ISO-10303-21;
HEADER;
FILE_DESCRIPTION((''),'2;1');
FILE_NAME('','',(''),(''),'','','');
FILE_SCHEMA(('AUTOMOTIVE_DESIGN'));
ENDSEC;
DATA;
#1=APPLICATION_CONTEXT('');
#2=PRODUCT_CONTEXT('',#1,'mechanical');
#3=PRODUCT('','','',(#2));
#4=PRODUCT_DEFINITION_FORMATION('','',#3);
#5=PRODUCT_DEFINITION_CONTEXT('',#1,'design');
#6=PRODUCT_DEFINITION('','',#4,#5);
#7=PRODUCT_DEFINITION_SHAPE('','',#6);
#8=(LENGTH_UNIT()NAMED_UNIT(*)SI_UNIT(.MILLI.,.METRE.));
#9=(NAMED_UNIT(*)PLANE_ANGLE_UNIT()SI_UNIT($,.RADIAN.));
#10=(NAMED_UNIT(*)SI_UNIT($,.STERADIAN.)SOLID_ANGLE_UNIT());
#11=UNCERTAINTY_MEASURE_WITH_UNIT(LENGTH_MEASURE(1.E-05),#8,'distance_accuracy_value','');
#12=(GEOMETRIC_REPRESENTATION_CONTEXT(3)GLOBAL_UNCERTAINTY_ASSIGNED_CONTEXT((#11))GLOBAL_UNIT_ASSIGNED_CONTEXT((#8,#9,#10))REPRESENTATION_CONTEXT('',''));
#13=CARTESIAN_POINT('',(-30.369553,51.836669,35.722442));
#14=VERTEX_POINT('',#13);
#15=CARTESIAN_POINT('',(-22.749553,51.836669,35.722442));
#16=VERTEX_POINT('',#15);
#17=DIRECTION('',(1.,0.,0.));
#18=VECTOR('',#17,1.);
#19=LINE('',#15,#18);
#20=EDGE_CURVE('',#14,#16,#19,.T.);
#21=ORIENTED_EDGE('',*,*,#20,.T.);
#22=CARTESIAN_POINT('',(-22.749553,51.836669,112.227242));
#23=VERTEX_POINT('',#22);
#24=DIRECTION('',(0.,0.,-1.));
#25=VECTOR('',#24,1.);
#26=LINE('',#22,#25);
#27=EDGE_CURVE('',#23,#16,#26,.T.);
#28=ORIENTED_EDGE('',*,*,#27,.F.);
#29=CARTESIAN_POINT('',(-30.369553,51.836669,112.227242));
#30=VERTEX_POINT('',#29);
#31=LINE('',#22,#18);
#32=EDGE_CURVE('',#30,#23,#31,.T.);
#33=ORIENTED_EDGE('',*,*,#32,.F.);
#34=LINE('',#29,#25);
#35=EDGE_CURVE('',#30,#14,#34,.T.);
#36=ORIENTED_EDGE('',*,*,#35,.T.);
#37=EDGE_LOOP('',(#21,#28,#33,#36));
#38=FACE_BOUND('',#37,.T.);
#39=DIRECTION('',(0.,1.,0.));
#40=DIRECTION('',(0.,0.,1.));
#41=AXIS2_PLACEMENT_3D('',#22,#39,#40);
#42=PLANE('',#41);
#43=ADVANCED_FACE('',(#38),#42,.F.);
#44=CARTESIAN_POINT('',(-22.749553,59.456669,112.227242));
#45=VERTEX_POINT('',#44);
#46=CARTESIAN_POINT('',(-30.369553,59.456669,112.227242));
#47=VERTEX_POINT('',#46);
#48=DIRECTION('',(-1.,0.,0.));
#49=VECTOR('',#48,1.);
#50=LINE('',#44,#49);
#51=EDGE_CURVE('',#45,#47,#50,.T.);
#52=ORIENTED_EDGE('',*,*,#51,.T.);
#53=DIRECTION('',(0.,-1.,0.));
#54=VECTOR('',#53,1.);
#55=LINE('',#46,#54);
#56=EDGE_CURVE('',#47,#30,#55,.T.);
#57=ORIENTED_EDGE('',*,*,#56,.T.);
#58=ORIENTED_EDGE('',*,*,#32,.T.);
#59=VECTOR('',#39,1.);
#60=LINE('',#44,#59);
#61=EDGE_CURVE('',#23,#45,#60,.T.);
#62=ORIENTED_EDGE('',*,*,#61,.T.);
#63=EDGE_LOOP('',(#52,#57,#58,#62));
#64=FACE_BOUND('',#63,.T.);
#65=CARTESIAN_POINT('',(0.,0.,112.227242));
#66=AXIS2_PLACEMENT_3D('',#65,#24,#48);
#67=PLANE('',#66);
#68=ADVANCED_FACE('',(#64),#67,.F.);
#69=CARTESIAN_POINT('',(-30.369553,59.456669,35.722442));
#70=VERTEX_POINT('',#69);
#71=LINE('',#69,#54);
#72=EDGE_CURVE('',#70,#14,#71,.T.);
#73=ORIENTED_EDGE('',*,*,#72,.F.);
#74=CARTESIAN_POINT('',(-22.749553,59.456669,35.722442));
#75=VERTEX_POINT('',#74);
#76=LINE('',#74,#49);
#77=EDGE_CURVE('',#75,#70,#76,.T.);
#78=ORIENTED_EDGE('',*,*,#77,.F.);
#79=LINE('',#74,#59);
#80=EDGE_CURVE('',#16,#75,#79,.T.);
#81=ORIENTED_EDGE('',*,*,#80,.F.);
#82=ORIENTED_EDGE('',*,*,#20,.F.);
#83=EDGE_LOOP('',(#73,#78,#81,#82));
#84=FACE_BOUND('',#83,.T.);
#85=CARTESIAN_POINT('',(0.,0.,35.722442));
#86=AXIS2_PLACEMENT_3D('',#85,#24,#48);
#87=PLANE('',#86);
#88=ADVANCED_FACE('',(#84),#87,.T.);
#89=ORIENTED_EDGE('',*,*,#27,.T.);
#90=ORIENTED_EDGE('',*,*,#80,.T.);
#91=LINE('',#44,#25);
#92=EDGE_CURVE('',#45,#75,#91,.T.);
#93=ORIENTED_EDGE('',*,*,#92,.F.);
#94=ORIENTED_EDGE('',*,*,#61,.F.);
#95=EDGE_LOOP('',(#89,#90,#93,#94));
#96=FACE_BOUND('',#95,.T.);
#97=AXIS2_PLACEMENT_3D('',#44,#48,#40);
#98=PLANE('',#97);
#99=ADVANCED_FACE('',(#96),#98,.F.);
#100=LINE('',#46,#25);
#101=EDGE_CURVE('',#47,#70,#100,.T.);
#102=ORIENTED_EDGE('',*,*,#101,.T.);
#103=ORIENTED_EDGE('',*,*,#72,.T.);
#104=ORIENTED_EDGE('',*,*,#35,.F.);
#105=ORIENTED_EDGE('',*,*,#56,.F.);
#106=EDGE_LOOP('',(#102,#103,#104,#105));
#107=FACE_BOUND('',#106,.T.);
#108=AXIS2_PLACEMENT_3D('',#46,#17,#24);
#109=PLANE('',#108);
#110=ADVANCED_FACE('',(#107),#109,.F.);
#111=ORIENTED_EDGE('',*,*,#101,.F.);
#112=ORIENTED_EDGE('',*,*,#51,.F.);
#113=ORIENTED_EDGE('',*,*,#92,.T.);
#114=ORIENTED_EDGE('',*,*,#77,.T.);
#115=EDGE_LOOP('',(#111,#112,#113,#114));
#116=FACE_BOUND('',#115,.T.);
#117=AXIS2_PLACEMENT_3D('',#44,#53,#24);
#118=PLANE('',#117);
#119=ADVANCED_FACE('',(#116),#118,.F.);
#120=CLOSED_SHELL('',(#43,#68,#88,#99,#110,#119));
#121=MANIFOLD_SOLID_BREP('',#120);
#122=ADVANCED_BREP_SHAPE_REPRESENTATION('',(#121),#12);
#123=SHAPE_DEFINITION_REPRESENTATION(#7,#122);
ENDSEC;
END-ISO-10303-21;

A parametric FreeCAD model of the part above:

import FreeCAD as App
import Part
import Sketcher
from FreeCAD import Vector
Q = App.Units.Quantity

doc = App.newDocument("Part")
params = doc.addObject("Spreadsheet::Sheet", "Params")
for row, (alias, value) in enumerate([
    ("sketch1_width", "0.3 in"),
    ("pad1_length", "3.012 in"),
], start=1):
    params.set(f"A{row}", alias)
    params.set(f"B{row}", "=" + value)
    params.setAlias(f"B{row}", alias)

body = doc.addObject("PartDesign::Body", "Body")

sketch1 = body.newObject("Sketcher::SketchObject", "Sketch")
sketch1.AttachmentSupport = (doc.getObject("XY_Plane"), [""])
sketch1.MapMode = "FlatFace"
sketch1.AttachmentOffset = App.Placement(Vector(0, 0, 35.722442), App.Rotation())
sketch1.addGeometry(Part.LineSegment(Vector(-30, 59, 0), Vector(-30, 52, 0)), False)
sketch1.addGeometry(Part.LineSegment(Vector(-30, 52, 0), Vector(-23, 52, 0)), False)
sketch1.addGeometry(Part.LineSegment(Vector(-23, 52, 0), Vector(-23, 59, 0)), False)
sketch1.addGeometry(Part.LineSegment(Vector(-23, 59, 0), Vector(-30, 59, 0)), False)
sketch1.addConstraint(Sketcher.Constraint("Coincident", 0, 2, 1, 1))
sketch1.addConstraint(Sketcher.Constraint("Coincident", 1, 2, 2, 1))
sketch1.addConstraint(Sketcher.Constraint("Coincident", 2, 2, 3, 1))
sketch1.addConstraint(Sketcher.Constraint("Coincident", 3, 2, 0, 1))
sketch1.addConstraint(Sketcher.Constraint("Vertical", 0))
sketch1.addConstraint(Sketcher.Constraint("Horizontal", 1))
sketch1.addConstraint(Sketcher.Constraint("Vertical", 2))
sketch1.addConstraint(Sketcher.Constraint("Horizontal", 3))
sketch1.addConstraint(Sketcher.Constraint("Equal", 3, 0))
sketch1.addConstraint(Sketcher.Constraint("DistanceX", 1, 1, 1, 2, Q("0.3 in")))
sketch1.addConstraint(Sketcher.Constraint("DistanceY", -1, 1, 0, 2, 51.836669))
sketch1.addConstraint(Sketcher.Constraint("DistanceX", 0, 2, -1, 1, 30.369553))
sketch1.setExpression("Constraints[9]", "Params.sketch1_width")
pad1 = body.newObject("PartDesign::Pad", "Pad")
pad1.Profile = sketch1
pad1.setExpression("Length", "Params.pad1_length")

doc.recompute()
